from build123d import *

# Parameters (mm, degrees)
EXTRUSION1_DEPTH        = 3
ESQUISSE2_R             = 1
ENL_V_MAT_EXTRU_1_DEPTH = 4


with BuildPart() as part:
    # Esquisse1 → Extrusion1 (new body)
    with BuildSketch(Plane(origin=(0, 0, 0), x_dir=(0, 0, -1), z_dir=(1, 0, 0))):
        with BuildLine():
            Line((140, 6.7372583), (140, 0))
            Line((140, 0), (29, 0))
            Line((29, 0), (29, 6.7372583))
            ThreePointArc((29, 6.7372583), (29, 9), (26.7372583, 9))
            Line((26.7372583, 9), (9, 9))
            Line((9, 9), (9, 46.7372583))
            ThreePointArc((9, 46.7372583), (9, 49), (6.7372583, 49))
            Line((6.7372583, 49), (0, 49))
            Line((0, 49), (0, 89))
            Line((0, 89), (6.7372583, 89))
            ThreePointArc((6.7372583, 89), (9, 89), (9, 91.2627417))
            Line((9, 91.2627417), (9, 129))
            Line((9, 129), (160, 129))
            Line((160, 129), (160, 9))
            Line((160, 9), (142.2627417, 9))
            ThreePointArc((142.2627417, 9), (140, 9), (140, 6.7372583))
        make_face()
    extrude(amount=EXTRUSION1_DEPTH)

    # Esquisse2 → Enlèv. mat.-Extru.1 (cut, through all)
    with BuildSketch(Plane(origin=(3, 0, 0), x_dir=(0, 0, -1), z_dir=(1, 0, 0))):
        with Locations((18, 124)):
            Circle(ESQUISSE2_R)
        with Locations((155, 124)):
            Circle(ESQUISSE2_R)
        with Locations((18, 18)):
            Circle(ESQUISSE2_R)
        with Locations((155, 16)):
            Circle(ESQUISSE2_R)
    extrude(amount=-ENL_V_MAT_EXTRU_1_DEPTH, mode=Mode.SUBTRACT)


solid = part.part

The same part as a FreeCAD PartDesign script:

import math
import FreeCAD as App
import Part
import Sketcher

doc = App.newDocument("Part")
body = doc.addObject("PartDesign::Body", "Body")

sketch1 = doc.addObject("Sketcher::SketchObject", "Sketch")
body.addObject(sketch1)
sketch1.AttachmentSupport = (doc.YZ_Plane, [""])
sketch1.MapMode = "FlatFace"
sketch1.addGeometry([
    Part.LineSegment(App.Vector(0, -140, 0), App.Vector(6.7, -140, 0)),
    Part.ArcOfCircle(Part.Circle(App.Vector(7.9, -141.1, 0), App.Vector(0, 0, 1), 1.6), math.radians(-45), math.radians(135)),
    Part.LineSegment(App.Vector(9, -142.3, 0), App.Vector(9, -160, 0)),
    Part.LineSegment(App.Vector(9, -160, 0), App.Vector(129, -160, 0)),
    Part.LineSegment(App.Vector(129, -160, 0), App.Vector(129, -9, 0)),
    Part.LineSegment(App.Vector(129, -9, 0), App.Vector(91.3, -9, 0)),
    Part.ArcOfCircle(Part.Circle(App.Vector(90.1, -7.9, 0), App.Vector(0, 0, 1), 1.6), math.radians(135), math.radians(315)),
    Part.LineSegment(App.Vector(89, -6.7, 0), App.Vector(89, 0, 0)),
    Part.LineSegment(App.Vector(89, 0, 0), App.Vector(49, 0, 0)),
    Part.LineSegment(App.Vector(49, 0, 0), App.Vector(49, -6.7, 0)),
    Part.ArcOfCircle(Part.Circle(App.Vector(47.9, -7.9, 0), App.Vector(0, 0, 1), 1.6), math.radians(-135), math.radians(45)),
    Part.LineSegment(App.Vector(46.7, -9, 0), App.Vector(9, -9, 0)),
    Part.LineSegment(App.Vector(9, -9, 0), App.Vector(9, -26.7, 0)),
    Part.ArcOfCircle(Part.Circle(App.Vector(7.9, -27.9, 0), App.Vector(0, 0, 1), 1.6), math.radians(-135), math.radians(45)),
    Part.LineSegment(App.Vector(6.7, -29, 0), App.Vector(0, -29, 0)),
    Part.LineSegment(App.Vector(0, -29, 0), App.Vector(0, -140, 0)),
], False)
sketch1.addConstraint([
    Sketcher.Constraint("Coincident", 0, 2, 1, 2),
    Sketcher.Constraint("Coincident", 1, 1, 2, 1),
    Sketcher.Constraint("Coincident", 2, 2, 3, 1),
    Sketcher.Constraint("Coincident", 3, 2, 4, 1),
    Sketcher.Constraint("Coincident", 4, 2, 5, 1),
    Sketcher.Constraint("Coincident", 5, 2, 6, 2),
    Sketcher.Constraint("Coincident", 6, 1, 7, 1),
    Sketcher.Constraint("Coincident", 7, 2, 8, 1),
    Sketcher.Constraint("Coincident", 8, 2, 9, 1),
    Sketcher.Constraint("Coincident", 9, 2, 10, 2),
    Sketcher.Constraint("Coincident", 10, 1, 11, 1),
    Sketcher.Constraint("Coincident", 11, 2, 12, 1),
    Sketcher.Constraint("Coincident", 12, 2, 13, 2),
    Sketcher.Constraint("Coincident", 13, 1, 14, 1),
    Sketcher.Constraint("Coincident", 14, 2, 15, 1),
    Sketcher.Constraint("Coincident", 15, 2, 0, 1),
    Sketcher.Constraint("Horizontal", 0),
    Sketcher.Constraint("Vertical", 2),
    Sketcher.Constraint("Horizontal", 3),
    Sketcher.Constraint("Vertical", 4),
    Sketcher.Constraint("Horizontal", 5),
    Sketcher.Constraint("Vertical", 7),
    Sketcher.Constraint("Horizontal", 8),
    Sketcher.Constraint("Vertical", 9),
    Sketcher.Constraint("Horizontal", 11),
    Sketcher.Constraint("Vertical", 12),
    Sketcher.Constraint("Horizontal", 14),
    Sketcher.Constraint("Vertical", 15),
    Sketcher.Constraint("Equal", 1, 6),
    Sketcher.Constraint("Equal", 6, 10),
    Sketcher.Constraint("Equal", 10, 13),
    Sketcher.Constraint("PointOnObject", 7, 2, -1),
    Sketcher.Constraint("PointOnObject", 14, 2, -2),
    Sketcher.Constraint("Horizontal", 6, 3, 10, 3),
    Sketcher.Constraint("Horizontal", 6, 1, 9, 2),
    Sketcher.Constraint("Horizontal", 5, 2, 10, 1),
    Sketcher.Constraint("Vertical", 1, 3, 13, 3),
    Sketcher.Constraint("Vertical", 2, 2, 11, 2),
    Sketcher.Constraint("Vertical", 0, 2, 13, 1),
    Sketcher.Constraint("Equal", 5, 11),
    Sketcher.Constraint("Equal", 14, 7),
    Sketcher.Constraint("Equal", 2, 12),
    Sketcher.Constraint("Radius", 1, 1.6),
    Sketcher.Constraint("DistanceX", 3, 1, 3, 2, 120.0),
    Sketcher.Constraint("DistanceX", 8, 2, 8, 1, 40.0),
    Sketcher.Constraint("DistanceY", 4, 1, 4, 2, 151.0),
    Sketcher.Constraint("DistanceY", 15, 2, 15, 1, 111.0),
    Sketcher.Constraint("DistanceY", 0, 2, -1, 1, 140.0),
    Sketcher.Constraint("DistanceX", -1, 1, 1, 1, 9.0),
    Sketcher.Constraint("DistanceX", 1, 3, 10, 3, 40.0),
    Sketcher.Constraint("DistanceY", 13, 3, 10, 3, 20.0),
    Sketcher.Constraint("DistanceX", -1, 1, 1, 3, 7.868629),
])
pad1 = doc.addObject("PartDesign::Pad", "Pad")
body.addObject(pad1)
pad1.Profile = sketch1
pad1.Length = 3

sketch2 = doc.addObject("Sketcher::SketchObject", "Sketch001")
body.addObject(sketch2)
sketch2.AttachmentSupport = (doc.YZ_Plane, [""])
sketch2.MapMode = "FlatFace"
sketch2.AttachmentOffset = App.Placement(App.Vector(0, 0, 3), App.Rotation())
sketch2.addGeometry([
    Part.Circle(App.Vector(124, -18, 0), App.Vector(0, 0, 1), 1),
    Part.Circle(App.Vector(124, -155, 0), App.Vector(0, 0, 1), 1),
    Part.Circle(App.Vector(18, -18, 0), App.Vector(0, 0, 1), 1),
    Part.Circle(App.Vector(16, -155, 0), App.Vector(0, 0, 1), 1),
], False)
sketch2.addConstraint([
    Sketcher.Constraint("Equal", 0, 1),
    Sketcher.Constraint("Equal", 1, 2),
    Sketcher.Constraint("Equal", 2, 3),
    Sketcher.Constraint("Horizontal", 0, 3, 2, 3),
    Sketcher.Constraint("Horizontal", 1, 3, 3, 3),
    Sketcher.Constraint("Vertical", 0, 3, 1, 3),
    Sketcher.Constraint("Diameter", 0, 2.0),
    Sketcher.Constraint("DistanceX", -1, 1, 0, 3, 124.0),
    Sketcher.Constraint("DistanceY", 0, 3, -1, 1, 18.0),
    Sketcher.Constraint("DistanceY", 1, 3, -1, 1, 155.0),
    Sketcher.Constraint("DistanceX", -1, 1, 2, 3, 18.0),
    Sketcher.Constraint("DistanceX", -1, 1, 3, 3, 16.0),
])
pocket1 = doc.addObject("PartDesign::Pocket", "Pocket")
body.addObject(pocket1)
pocket1.Profile = sketch2
pocket1.Type = "ThroughAll"

doc.recompute()
